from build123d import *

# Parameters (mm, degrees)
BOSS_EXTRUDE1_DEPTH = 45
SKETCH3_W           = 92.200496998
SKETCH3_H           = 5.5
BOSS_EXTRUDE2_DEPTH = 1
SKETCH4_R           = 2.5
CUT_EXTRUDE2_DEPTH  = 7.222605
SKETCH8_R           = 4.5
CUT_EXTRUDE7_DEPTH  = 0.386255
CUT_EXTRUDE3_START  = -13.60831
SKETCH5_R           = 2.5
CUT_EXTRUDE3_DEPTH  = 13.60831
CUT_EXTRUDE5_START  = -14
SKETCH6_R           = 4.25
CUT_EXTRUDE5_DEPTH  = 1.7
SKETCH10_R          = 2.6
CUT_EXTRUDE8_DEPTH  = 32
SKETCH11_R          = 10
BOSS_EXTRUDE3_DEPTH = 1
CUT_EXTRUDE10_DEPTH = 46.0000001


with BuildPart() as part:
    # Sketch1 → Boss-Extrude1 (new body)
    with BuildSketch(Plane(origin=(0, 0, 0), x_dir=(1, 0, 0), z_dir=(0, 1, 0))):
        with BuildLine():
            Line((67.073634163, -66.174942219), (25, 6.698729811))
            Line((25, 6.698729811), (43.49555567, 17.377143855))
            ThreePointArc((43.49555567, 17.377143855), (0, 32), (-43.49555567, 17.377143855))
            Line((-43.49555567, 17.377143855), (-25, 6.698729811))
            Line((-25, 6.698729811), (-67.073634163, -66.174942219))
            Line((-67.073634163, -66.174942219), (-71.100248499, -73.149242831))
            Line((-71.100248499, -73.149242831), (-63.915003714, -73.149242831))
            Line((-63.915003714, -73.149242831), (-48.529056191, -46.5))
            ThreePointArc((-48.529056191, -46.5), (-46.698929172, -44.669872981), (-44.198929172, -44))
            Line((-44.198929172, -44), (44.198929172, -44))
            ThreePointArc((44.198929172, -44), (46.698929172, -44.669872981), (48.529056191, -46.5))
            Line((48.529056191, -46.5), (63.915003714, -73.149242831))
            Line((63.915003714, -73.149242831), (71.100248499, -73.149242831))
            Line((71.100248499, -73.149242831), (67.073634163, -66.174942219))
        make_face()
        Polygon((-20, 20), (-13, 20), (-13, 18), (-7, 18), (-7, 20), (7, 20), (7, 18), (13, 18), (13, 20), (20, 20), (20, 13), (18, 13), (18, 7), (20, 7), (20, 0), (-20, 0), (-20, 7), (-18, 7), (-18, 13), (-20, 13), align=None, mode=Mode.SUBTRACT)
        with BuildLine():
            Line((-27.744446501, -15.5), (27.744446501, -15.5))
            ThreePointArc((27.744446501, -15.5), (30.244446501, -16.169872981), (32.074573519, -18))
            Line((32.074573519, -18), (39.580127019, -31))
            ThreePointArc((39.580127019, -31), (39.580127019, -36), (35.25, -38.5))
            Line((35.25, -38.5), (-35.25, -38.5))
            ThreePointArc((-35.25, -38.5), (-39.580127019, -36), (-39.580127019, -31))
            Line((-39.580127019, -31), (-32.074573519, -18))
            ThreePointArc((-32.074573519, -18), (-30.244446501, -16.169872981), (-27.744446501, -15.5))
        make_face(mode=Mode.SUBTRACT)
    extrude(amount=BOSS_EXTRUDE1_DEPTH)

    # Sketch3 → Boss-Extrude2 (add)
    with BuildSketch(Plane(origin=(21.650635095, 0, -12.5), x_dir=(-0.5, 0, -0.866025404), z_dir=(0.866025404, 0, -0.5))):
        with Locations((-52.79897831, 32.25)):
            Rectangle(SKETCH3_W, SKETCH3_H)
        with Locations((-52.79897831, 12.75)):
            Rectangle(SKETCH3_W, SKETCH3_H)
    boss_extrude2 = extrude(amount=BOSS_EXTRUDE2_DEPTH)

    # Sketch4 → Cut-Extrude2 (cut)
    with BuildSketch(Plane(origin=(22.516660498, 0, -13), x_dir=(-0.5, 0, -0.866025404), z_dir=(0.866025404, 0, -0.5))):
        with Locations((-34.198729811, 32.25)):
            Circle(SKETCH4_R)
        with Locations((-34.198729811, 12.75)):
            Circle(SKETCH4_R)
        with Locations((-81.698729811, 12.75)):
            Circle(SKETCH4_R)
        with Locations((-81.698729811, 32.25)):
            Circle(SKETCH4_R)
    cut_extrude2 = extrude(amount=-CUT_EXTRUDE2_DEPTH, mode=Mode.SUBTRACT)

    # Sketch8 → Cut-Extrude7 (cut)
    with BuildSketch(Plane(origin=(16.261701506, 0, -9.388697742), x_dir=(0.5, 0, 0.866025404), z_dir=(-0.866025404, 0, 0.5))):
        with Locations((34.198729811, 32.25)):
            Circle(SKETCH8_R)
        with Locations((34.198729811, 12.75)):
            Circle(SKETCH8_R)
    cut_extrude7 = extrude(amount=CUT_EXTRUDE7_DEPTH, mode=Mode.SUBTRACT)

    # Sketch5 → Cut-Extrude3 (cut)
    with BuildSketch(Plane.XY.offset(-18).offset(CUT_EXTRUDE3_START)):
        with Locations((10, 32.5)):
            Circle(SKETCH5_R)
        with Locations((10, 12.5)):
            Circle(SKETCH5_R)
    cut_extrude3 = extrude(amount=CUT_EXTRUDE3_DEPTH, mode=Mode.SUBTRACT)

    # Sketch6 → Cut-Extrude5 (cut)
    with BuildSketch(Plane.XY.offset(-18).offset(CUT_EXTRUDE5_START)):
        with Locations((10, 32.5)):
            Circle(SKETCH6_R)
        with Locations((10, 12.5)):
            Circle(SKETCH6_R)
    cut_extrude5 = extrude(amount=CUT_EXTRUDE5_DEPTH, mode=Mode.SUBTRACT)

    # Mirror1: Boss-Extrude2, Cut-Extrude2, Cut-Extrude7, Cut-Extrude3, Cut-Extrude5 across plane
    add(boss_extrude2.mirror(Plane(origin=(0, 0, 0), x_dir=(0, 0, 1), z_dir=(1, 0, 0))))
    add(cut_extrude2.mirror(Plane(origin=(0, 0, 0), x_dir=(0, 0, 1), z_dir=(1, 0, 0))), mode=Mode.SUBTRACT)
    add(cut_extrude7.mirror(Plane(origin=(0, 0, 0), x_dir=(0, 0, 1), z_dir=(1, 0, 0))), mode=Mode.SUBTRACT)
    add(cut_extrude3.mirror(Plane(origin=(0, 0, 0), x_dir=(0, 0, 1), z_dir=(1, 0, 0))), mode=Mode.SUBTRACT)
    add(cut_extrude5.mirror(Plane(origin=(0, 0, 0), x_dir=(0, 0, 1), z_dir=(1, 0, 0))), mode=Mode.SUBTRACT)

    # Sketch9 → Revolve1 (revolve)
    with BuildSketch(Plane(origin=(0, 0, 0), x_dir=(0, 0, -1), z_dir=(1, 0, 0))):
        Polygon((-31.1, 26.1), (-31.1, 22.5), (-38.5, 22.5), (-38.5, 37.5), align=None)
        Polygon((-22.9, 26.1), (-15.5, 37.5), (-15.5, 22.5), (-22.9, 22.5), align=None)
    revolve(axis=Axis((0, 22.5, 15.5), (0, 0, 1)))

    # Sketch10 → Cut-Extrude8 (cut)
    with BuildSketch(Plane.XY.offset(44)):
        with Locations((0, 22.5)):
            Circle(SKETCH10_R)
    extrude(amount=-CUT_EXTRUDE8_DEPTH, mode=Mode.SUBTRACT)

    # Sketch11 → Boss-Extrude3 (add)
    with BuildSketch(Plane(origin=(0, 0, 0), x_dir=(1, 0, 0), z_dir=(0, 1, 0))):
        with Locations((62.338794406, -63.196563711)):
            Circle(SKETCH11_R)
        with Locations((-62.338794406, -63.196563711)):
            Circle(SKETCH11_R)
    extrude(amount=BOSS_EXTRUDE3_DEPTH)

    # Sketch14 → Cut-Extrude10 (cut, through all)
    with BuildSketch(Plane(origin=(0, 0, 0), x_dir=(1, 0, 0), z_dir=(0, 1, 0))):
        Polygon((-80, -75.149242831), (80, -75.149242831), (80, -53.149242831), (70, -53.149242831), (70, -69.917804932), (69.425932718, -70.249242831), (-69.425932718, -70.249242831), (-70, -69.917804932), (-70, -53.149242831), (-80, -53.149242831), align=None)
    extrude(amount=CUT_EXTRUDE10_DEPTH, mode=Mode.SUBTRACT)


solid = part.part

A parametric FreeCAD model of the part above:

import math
import FreeCAD as App
import Part
import Sketcher
Q = App.Units.Quantity

doc = App.newDocument("Part")
body = doc.addObject("PartDesign::Body", "Body")

sketch1 = body.newObject("Sketcher::SketchObject", "Sketch")
sketch1.AttachmentSupport = (doc.getObject("XZ_Plane"), [""])
sketch1.MapMode = "FlatFace"
sketch1.addGeometry([
    Part.LineSegment(App.Vector(67.1, 66.2, 0), App.Vector(25, -6.7, 0)),
    Part.LineSegment(App.Vector(25, -6.7, 0), App.Vector(43.5, -17.4, 0)),
    Part.ArcOfCircle(Part.Circle(App.Vector(0, 40, 0), App.Vector(0, 0, 1), 72), math.radians(-127), math.radians(-53)),
    Part.LineSegment(App.Vector(-43.5, -17.4, 0), App.Vector(-25, -6.7, 0)),
    Part.LineSegment(App.Vector(-25, -6.7, 0), App.Vector(-67.1, 66.2, 0)),
    Part.LineSegment(App.Vector(-67.1, 66.2, 0), App.Vector(-71.1, 73.1, 0)),
    Part.LineSegment(App.Vector(-71.1, 73.1, 0), App.Vector(-63.9, 73.1, 0)),
    Part.LineSegment(App.Vector(-63.9, 73.1, 0), App.Vector(-48.5, 46.5, 0)),
    Part.ArcOfCircle(Part.Circle(App.Vector(-44.2, 49, 0), App.Vector(0, 0, 1), 5), math.radians(-150), math.radians(-90)),
    Part.LineSegment(App.Vector(-44.2, 44, 0), App.Vector(44.2, 44, 0)),
    Part.ArcOfCircle(Part.Circle(App.Vector(44.2, 49, 0), App.Vector(0, 0, 1), 5), math.radians(-90), math.radians(-30)),
    Part.LineSegment(App.Vector(48.5, 46.5, 0), App.Vector(63.9, 73.1, 0)),
    Part.LineSegment(App.Vector(63.9, 73.1, 0), App.Vector(71.1, 73.1, 0)),
    Part.LineSegment(App.Vector(71.1, 73.1, 0), App.Vector(67.1, 66.2, 0)),
    Part.ArcOfCircle(Part.Circle(App.Vector(-27.7, 20.5, 0), App.Vector(0, 0, 1), 5), math.radians(-150), math.radians(-90)),
    Part.LineSegment(App.Vector(-27.7, 15.5, 0), App.Vector(27.7, 15.5, 0)),
    Part.ArcOfCircle(Part.Circle(App.Vector(27.7, 20.5, 0), App.Vector(0, 0, 1), 5), math.radians(-90), math.radians(-30)),
    Part.LineSegment(App.Vector(32.1, 18, 0), App.Vector(39.6, 31, 0)),
    Part.ArcOfCircle(Part.Circle(App.Vector(35.2, 33.5, 0), App.Vector(0, 0, 1), 5), math.radians(-30), math.radians(90)),
    Part.LineSegment(App.Vector(35.2, 38.5, 0), App.Vector(-35.2, 38.5, 0)),
    Part.ArcOfCircle(Part.Circle(App.Vector(-35.2, 33.5, 0), App.Vector(0, 0, 1), 5), math.radians(90), math.radians(210)),
    Part.LineSegment(App.Vector(-39.6, 31, 0), App.Vector(-32.1, 18, 0)),
    Part.LineSegment(App.Vector(-20, -13, 0), App.Vector(-20, -20, 0)),
    Part.LineSegment(App.Vector(-20, -20, 0), App.Vector(-13, -20, 0)),
    Part.LineSegment(App.Vector(-13, -20, 0), App.Vector(-13, -18, 0)),
    Part.LineSegment(App.Vector(-13, -18, 0), App.Vector(-7, -18, 0)),
    Part.LineSegment(App.Vector(-7, -18, 0), App.Vector(-7, -20, 0)),
    Part.LineSegment(App.Vector(-7, -20, 0), App.Vector(7, -20, 0)),
    Part.LineSegment(App.Vector(7, -20, 0), App.Vector(7, -18, 0)),
    Part.LineSegment(App.Vector(7, -18, 0), App.Vector(13, -18, 0)),
    Part.LineSegment(App.Vector(13, -18, 0), App.Vector(13, -20, 0)),
    Part.LineSegment(App.Vector(13, -20, 0), App.Vector(20, -20, 0)),
    Part.LineSegment(App.Vector(20, -20, 0), App.Vector(20, -13, 0)),
    Part.LineSegment(App.Vector(20, -13, 0), App.Vector(18, -13, 0)),
    Part.LineSegment(App.Vector(18, -13, 0), App.Vector(18, -7, 0)),
    Part.LineSegment(App.Vector(18, -7, 0), App.Vector(20, -7, 0)),
    Part.LineSegment(App.Vector(20, -7, 0), App.Vector(20, 0, 0)),
    Part.LineSegment(App.Vector(20, 0, 0), App.Vector(-20, 0, 0)),
    Part.LineSegment(App.Vector(-20, 0, 0), App.Vector(-20, -7, 0)),
    Part.LineSegment(App.Vector(-20, -7, 0), App.Vector(-18, -7, 0)),
    Part.LineSegment(App.Vector(-18, -7, 0), App.Vector(-18, -13, 0)),
    Part.LineSegment(App.Vector(-18, -13, 0), App.Vector(-20, -13, 0)),
], False)
sketch1.addConstraint([
    Sketcher.Constraint("Coincident", 0, 2, 1, 1),
    Sketcher.Constraint("Coincident", 1, 2, 2, 2),
    Sketcher.Constraint("Coincident", 2, 1, 3, 1),
    Sketcher.Constraint("Coincident", 3, 2, 4, 1),
    Sketcher.Constraint("Coincident", 4, 2, 5, 1),
    Sketcher.Constraint("Coincident", 5, 2, 6, 1),
    Sketcher.Constraint("Coincident", 6, 2, 7, 1),
    Sketcher.Constraint("Tangent", 7, 2, 8, 1),
    Sketcher.Constraint("Tangent", 8, 2, 9, 1),
    Sketcher.Constraint("Tangent", 9, 2, 10, 1),
    Sketcher.Constraint("Tangent", 10, 2, 11, 1),
    Sketcher.Constraint("Coincident", 11, 2, 12, 1),
    Sketcher.Constraint("Coincident", 12, 2, 13, 1),
    Sketcher.Constraint("Coincident", 13, 2, 0, 1),
    Sketcher.Constraint("Tangent", 14, 2, 15, 1),
    Sketcher.Constraint("Tangent", 15, 2, 16, 1),
    Sketcher.Constraint("Tangent", 16, 2, 17, 1),
    Sketcher.Constraint("Tangent", 17, 2, 18, 1),
    Sketcher.Constraint("Tangent", 18, 2, 19, 1),
    Sketcher.Constraint("Tangent", 19, 2, 20, 1),
    Sketcher.Constraint("Tangent", 20, 2, 21, 1),
    Sketcher.Constraint("Tangent", 21, 2, 14, 1),
    Sketcher.Constraint("Coincident", 22, 2, 23, 1),
    Sketcher.Constraint("Coincident", 23, 2, 24, 1),
    Sketcher.Constraint("Coincident", 24, 2, 25, 1),
    Sketcher.Constraint("Coincident", 25, 2, 26, 1),
    Sketcher.Constraint("Coincident", 26, 2, 27, 1),
    Sketcher.Constraint("Coincident", 27, 2, 28, 1),
    Sketcher.Constraint("Coincident", 28, 2, 29, 1),
    Sketcher.Constraint("Coincident", 29, 2, 30, 1),
    Sketcher.Constraint("Coincident", 30, 2, 31, 1),
    Sketcher.Constraint("Coincident", 31, 2, 32, 1),
    Sketcher.Constraint("Coincident", 32, 2, 33, 1),
    Sketcher.Constraint("Coincident", 33, 2, 34, 1),
    Sketcher.Constraint("Coincident", 34, 2, 35, 1),
    Sketcher.Constraint("Coincident", 35, 2, 36, 1),
    Sketcher.Constraint("Coincident", 36, 2, 37, 1),
    Sketcher.Constraint("Coincident", 37, 2, 38, 1),
    Sketcher.Constraint("Coincident", 38, 2, 39, 1),
    Sketcher.Constraint("Coincident", 39, 2, 40, 1),
    Sketcher.Constraint("Coincident", 40, 2, 41, 1),
    Sketcher.Constraint("Coincident", 41, 2, 22, 1),
    Sketcher.Constraint("Horizontal", 6),
    Sketcher.Constraint("Horizontal", 9),
    Sketcher.Constraint("Horizontal", 12),
    Sketcher.Constraint("Horizontal", 15),
    Sketcher.Constraint("Horizontal", 19),
    Sketcher.Constraint("Vertical", 22),
    Sketcher.Constraint("Horizontal", 23),
    Sketcher.Constraint("Vertical", 24),
    Sketcher.Constraint("Horizontal", 25),
    Sketcher.Constraint("Vertical", 26),
    Sketcher.Constraint("Horizontal", 27),
    Sketcher.Constraint("Vertical", 28),
    Sketcher.Constraint("Horizontal", 29),
    Sketcher.Constraint("Vertical", 30),
    Sketcher.Constraint("Horizontal", 31),
    Sketcher.Constraint("Vertical", 32),
    Sketcher.Constraint("Horizontal", 33),
    Sketcher.Constraint("Vertical", 34),
    Sketcher.Constraint("Horizontal", 35),
    Sketcher.Constraint("Vertical", 36),
    Sketcher.Constraint("Horizontal", 37),
    Sketcher.Constraint("Vertical", 38),
    Sketcher.Constraint("Horizontal", 39),
    Sketcher.Constraint("Vertical", 40),
    Sketcher.Constraint("Horizontal", 41),
    Sketcher.Constraint("Equal", 8, 10),
    Sketcher.Constraint("Equal", 10, 14),
    Sketcher.Constraint("Equal", 14, 16),
    Sketcher.Constraint("Equal", 16, 18),
    Sketcher.Constraint("Equal", 18, 20),
    Sketcher.Constraint("Symmetric", 36, 2, 37, 2, -1, 1),
    Sketcher.Constraint("Symmetric", 1, 2, 2, 1, -2),
    Sketcher.Constraint("Symmetric", 0, 2, 3, 2, -2),
    Sketcher.Constraint("Symmetric", 7, 2, 10, 2, -2),
    Sketcher.Constraint("Symmetric", 5, 2, 12, 2, -2),
    Sketcher.Constraint("Symmetric", 4, 2, 13, 2, -2),
    Sketcher.Constraint("Symmetric", 17, 2, 20, 2, -2),
    Sketcher.Constraint("Symmetric", 25, 2, 28, 2, -2),
    Sketcher.Constraint("Symmetric", 23, 2, 30, 2, -2),
    Sketcher.Constraint("Symmetric", 34, 2, 39, 2, -2),
    Sketcher.Constraint("Symmetric", 32, 2, 41, 2, -2),
    Sketcher.Constraint("Perpendicular", 0, 1),
    Sketcher.Constraint("Parallel", 4, 5),
    Sketcher.Constraint("Parallel", 5, 7),
    Sketcher.Constraint("Parallel", 13, 17),
    Sketcher.Constraint("Horizontal", 23, 2, 26, 2),
    Sketcher.Constraint("Vertical", 32, 2, 35, 2),
    Sketcher.Constraint("Equal", 31, 22),
    Sketcher.Constraint("Equal", 41, 24),
    Sketcher.Constraint("Equal", 29, 34),
    Sketcher.Constraint("Equal", 32, 36),
    Sketcher.Constraint("Radius", 2, Q("72 mm")),
    Sketcher.Constraint("Radius", 8, Q("5 mm")),
    Sketcher.Constraint("DistanceX", 23, 1, 23, 2, Q("7 mm")),
    Sketcher.Constraint("DistanceX", 25, 1, 25, 2, Q("6 mm")),
    Sketcher.Constraint("DistanceX", 27, 1, 27, 2, Q("14 mm")),
    Sketcher.Constraint("DistanceX", 33, 2, 33, 1, Q("2 mm")),
    Sketcher.Constraint("Angle", 0, Q("-120 deg")),
    Sketcher.Constraint("DistanceX", 19, 2, 19, 1, Q("70.5 mm")),
    Sketcher.Constraint("DistanceY", -1, 1, 2, 3, Q("40 mm")),
    Sketcher.Constraint("DistanceY", -1, 1, 8, 3, Q("49 mm")),
    Sketcher.Constraint("DistanceX", -1, 1, 0, 2, Q("25 mm")),
    Sketcher.Constraint("DistanceY", -1, 1, 16, 2, Q("18 mm")),
    Sketcher.Constraint("DistanceY", -1, 1, 17, 2, Q("31 mm")),
    Sketcher.Constraint("DistanceX", 9, 1, 9, 2, Q("88.397858 mm")),
    Sketcher.Constraint("DistanceY", 4, 2, 5, 2, Q("6.974301 mm")),
    Sketcher.Constraint("DistanceX", 5, 2, 14, 3, Q("43.355802 mm")),
    Sketcher.Constraint("Distance", 1, Q("21.356828 mm")),
])
pad1 = body.newObject("PartDesign::Pad", "Pad")
pad1.Profile = sketch1
pad1.Length = 45
pad1.Reversed = True

sketch2 = body.newObject("Sketcher::SketchObject", "Sketch001")
sketch2.Placement = App.Placement(App.Vector(21.650635, 0, -12.5), App.Rotation(App.Vector(-0.5, 0, -0.866025404), App.Vector(0, 1, 0), App.Vector(0.866025404, 0, -0.5), "ZXY"))
sketch2.addGeometry([
    Part.LineSegment(App.Vector(-99, 35, 0), App.Vector(-99, 30, 0)),
    Part.LineSegment(App.Vector(-99, 30, 0), App.Vector(-7, 30, 0)),
    Part.LineSegment(App.Vector(-7, 30, 0), App.Vector(-7, 35, 0)),
    Part.LineSegment(App.Vector(-7, 35, 0), App.Vector(-99, 35, 0)),
    Part.LineSegment(App.Vector(-99, 16, 0), App.Vector(-99, 10, 0)),
    Part.LineSegment(App.Vector(-99, 10, 0), App.Vector(-7, 10, 0)),
    Part.LineSegment(App.Vector(-7, 10, 0), App.Vector(-7, 16, 0)),
    Part.LineSegment(App.Vector(-7, 16, 0), App.Vector(-99, 16, 0)),
], False)
sketch2.addConstraint([
    Sketcher.Constraint("Coincident", 0, 2, 1, 1),
    Sketcher.Constraint("Coincident", 1, 2, 2, 1),
    Sketcher.Constraint("Coincident", 2, 2, 3, 1),
    Sketcher.Constraint("Coincident", 3, 2, 0, 1),
    Sketcher.Constraint("Coincident", 4, 2, 5, 1),
    Sketcher.Constraint("Coincident", 5, 2, 6, 1),
    Sketcher.Constraint("Coincident", 6, 2, 7, 1),
    Sketcher.Constraint("Coincident", 7, 2, 4, 1),
    Sketcher.Constraint("Vertical", 0),
    Sketcher.Constraint("Horizontal", 1),
    Sketcher.Constraint("Vertical", 2),
    Sketcher.Constraint("Horizontal", 3),
    Sketcher.Constraint("Vertical", 4),
    Sketcher.Constraint("Horizontal", 5),
    Sketcher.Constraint("Vertical", 6),
    Sketcher.Constraint("Horizontal", 7),
    Sketcher.Constraint("Vertical", 3, 2, 4, 2),
    Sketcher.Constraint("Vertical", 2, 2, 5, 2),
    Sketcher.Constraint("Equal", 2, 4),
    Sketcher.Constraint("DistanceY", 0, 2, 0, 1, Q("5.5 mm")),
    Sketcher.Constraint("DistanceY", -1, 1, 2, 2, Q("35 mm")),
    Sketcher.Constraint("DistanceY", -1, 1, 4, 2, Q("10 mm")),
    Sketcher.Constraint("DistanceX", 1, 1, 1, 2, Q("92.200497 mm")),
    Sketcher.Constraint("DistanceX", 1, 2, -1, 1, Q("6.69873 mm")),
])
pad2 = body.newObject("PartDesign::Pad", "Pad001")
pad2.Profile = sketch2
pad2.Length = 1

sketch3 = body.newObject("Sketcher::SketchObject", "Sketch002")
sketch3.Placement = App.Placement(App.Vector(22.51666, 0, -13), App.Rotation(App.Vector(-0.5, 0, -0.866025404), App.Vector(0, 1, 0), App.Vector(0.866025404, 0, -0.5), "ZXY"))
sketch3.addGeometry([
    Part.Circle(App.Vector(-34.2, 32.3, 0), App.Vector(0, 0, 1), 2.5),
    Part.Circle(App.Vector(-34.2, 12.8, 0), App.Vector(0, 0, 1), 2.5),
    Part.Circle(App.Vector(-81.7, 12.8, 0), App.Vector(0, 0, 1), 2.5),
    Part.Circle(App.Vector(-81.7, 32.3, 0), App.Vector(0, 0, 1), 2.5),
], False)
sketch3.addConstraint([
    Sketcher.Constraint("Equal", 0, 1),
    Sketcher.Constraint("Equal", 1, 2),
    Sketcher.Constraint("Equal", 2, 3),
    Sketcher.Constraint("Horizontal", 1, 3, 2, 3),
    Sketcher.Constraint("Horizontal", 0, 3, 3, 3),
    Sketcher.Constraint("Vertical", 0, 3, 1, 3),
    Sketcher.Constraint("Vertical", 2, 3, 3, 3),
    Sketcher.Constraint("Diameter", 0, Q("5 mm")),
    Sketcher.Constraint("DistanceY", 1, 3, 0, 3, Q("19.5 mm")),
    Sketcher.Constraint("DistanceX", 2, 3, 1, 3, Q("47.5 mm")),
    Sketcher.Constraint("DistanceY", -1, 1, 0, 3, Q("32.25 mm")),
    Sketcher.Constraint("DistanceX", 0, 3, -1, 1, Q("34.19873 mm")),
])
pocket1 = body.newObject("PartDesign::Pocket", "Pocket")
pocket1.Profile = sketch3
pocket1.Length = 7.222605

sketch4 = body.newObject("Sketcher::SketchObject", "Sketch003")
sketch4.Placement = App.Placement(App.Vector(16.261702, 0, -9.388698), App.Rotation(App.Vector(0.5, 0, 0.866025404), App.Vector(0, 1, 0), App.Vector(-0.866025404, 0, 0.5), "ZXY"))
sketch4.addGeometry([
    Part.Circle(App.Vector(34.2, 32.3, 0), App.Vector(0, 0, 1), 4.5),
    Part.Circle(App.Vector(34.2, 12.8, 0), App.Vector(0, 0, 1), 4.5),
], False)
sketch4.addConstraint([
    Sketcher.Constraint("Equal", 0, 1),
    Sketcher.Constraint("Vertical", 0, 3, 1, 3),
    Sketcher.Constraint("Diameter", 0, Q("9 mm")),
    Sketcher.Constraint("DistanceY", 1, 3, 0, 3, Q("19.5 mm")),
    Sketcher.Constraint("DistanceY", -1, 1, 0, 3, Q("32.25 mm")),
    Sketcher.Constraint("DistanceX", -1, 1, 0, 3, Q("34.19873 mm")),
])
pocket2 = body.newObject("PartDesign::Pocket", "Pocket001")
pocket2.Profile = sketch4
pocket2.Length = 0.386255
pocket2.Reversed = True

sketch5 = body.newObject("Sketcher::SketchObject", "Sketch004")
sketch5.AttachmentSupport = (doc.getObject("XY_Plane"), [""])
sketch5.MapMode = "FlatFace"
sketch5.AttachmentOffset = App.Placement(App.Vector(0, 0, -31.60831), App.Rotation())
sketch5.addGeometry([
    Part.Circle(App.Vector(10, 32.5, 0), App.Vector(0, 0, 1), 2.5),
    Part.Circle(App.Vector(10, 12.5, 0), App.Vector(0, 0, 1), 2.5),
], False)
sketch5.addConstraint([
    Sketcher.Constraint("Equal", 0, 1),
    Sketcher.Constraint("Vertical", 0, 3, 1, 3),
    Sketcher.Constraint("Diameter", 0, Q("5 mm")),
    Sketcher.Constraint("DistanceX", -1, 1, 0, 3, Q("10 mm")),
    Sketcher.Constraint("DistanceY", 1, 3, 0, 3, Q("20 mm")),
    Sketcher.Constraint("DistanceY", -1, 1, 0, 3, Q("32.5 mm")),
])
pocket3 = body.newObject("PartDesign::Pocket", "Pocket002")
pocket3.Profile = sketch5
pocket3.Length = 13.60831
pocket3.Reversed = True

sketch6 = body.newObject("Sketcher::SketchObject", "Sketch005")
sketch6.AttachmentSupport = (doc.getObject("XY_Plane"), [""])
sketch6.MapMode = "FlatFace"
sketch6.AttachmentOffset = App.Placement(App.Vector(0, 0, -32), App.Rotation())
sketch6.addGeometry([
    Part.Circle(App.Vector(10, 32.5, 0), App.Vector(0, 0, 1), 4.2),
    Part.Circle(App.Vector(10, 12.5, 0), App.Vector(0, 0, 1), 4.2),
], False)
sketch6.addConstraint([
    Sketcher.Constraint("Equal", 0, 1),
    Sketcher.Constraint("Vertical", 0, 3, 1, 3),
    Sketcher.Constraint("Diameter", 0, Q("8.5 mm")),
    Sketcher.Constraint("DistanceX", -1, 1, 0, 3, Q("10 mm")),
    Sketcher.Constraint("DistanceY", 1, 3, 0, 3, Q("20 mm")),
    Sketcher.Constraint("DistanceY", -1, 1, 0, 3, Q("32.5 mm")),
])
pocket4 = body.newObject("PartDesign::Pocket", "Pocket003")
pocket4.Profile = sketch6
pocket4.Length = 1.7
pocket4.Reversed = True
doc.recompute()

mirrored = body.newObject("PartDesign::Mirrored", "Mirrored")
mirrored.Originals = [pad2, pocket1, pocket2, pocket3, pocket4]
mirrored.MirrorPlane = (doc.getObject("YZ_Plane"), [""])
body.Tip = mirrored

sketch7 = body.newObject("Sketcher::SketchObject", "Sketch006")
sketch7.AttachmentSupport = (doc.getObject("YZ_Plane"), [""])
sketch7.MapMode = "FlatFace"
sketch7.addGeometry([
    Part.LineSegment(App.Vector(22.5, 31.1, 0), App.Vector(26.1, 31.1, 0)),
    Part.LineSegment(App.Vector(26.1, 31.1, 0), App.Vector(37.5, 38.5, 0)),
    Part.LineSegment(App.Vector(37.5, 38.5, 0), App.Vector(22.5, 38.5, 0)),
    Part.LineSegment(App.Vector(22.5, 38.5, 0), App.Vector(22.5, 31.1, 0)),
    Part.LineSegment(App.Vector(37.5, 15.5, 0), App.Vector(26.1, 22.9, 0)),
    Part.LineSegment(App.Vector(26.1, 22.9, 0), App.Vector(22.5, 22.9, 0)),
    Part.LineSegment(App.Vector(22.5, 22.9, 0), App.Vector(22.5, 15.5, 0)),
    Part.LineSegment(App.Vector(22.5, 15.5, 0), App.Vector(37.5, 15.5, 0)),
], False)
sketch7.addGeometry(Part.LineSegment(App.Vector(22.5, 15.5, 0), App.Vector(22.5, 38.5, 0)), True)
sketch7.addConstraint([
    Sketcher.Constraint("Coincident", 0, 2, 1, 1),
    Sketcher.Constraint("Coincident", 1, 2, 2, 1),
    Sketcher.Constraint("Coincident", 2, 2, 3, 1),
    Sketcher.Constraint("Coincident", 3, 2, 0, 1),
    Sketcher.Constraint("Coincident", 4, 2, 5, 1),
    Sketcher.Constraint("Coincident", 5, 2, 6, 1),
    Sketcher.Constraint("Coincident", 6, 2, 7, 1),
    Sketcher.Constraint("Coincident", 7, 2, 4, 1),
    Sketcher.Constraint("Horizontal", 0),
    Sketcher.Constraint("Horizontal", 2),
    Sketcher.Constraint("Vertical", 3),
    Sketcher.Constraint("Horizontal", 5),
    Sketcher.Constraint("Vertical", 6),
    Sketcher.Constraint("Horizontal", 7),
    Sketcher.Constraint("Vertical", 8),
    Sketcher.Constraint("Coincident", 8, 1, 6, 2),
    Sketcher.Constraint("Coincident", 8, 2, 2, 2),
    Sketcher.Constraint("Vertical", 0, 2, 4, 2),
    Sketcher.Constraint("Vertical", 1, 2, 7, 2),
    Sketcher.Constraint("Equal", 3, 6),
    Sketcher.Constraint("DistanceX", 2, 2, 2, 1, Q("15 mm")),
    Sketcher.Constraint("DistanceY", 8, 1, 8, 2, Q("23 mm")),
    Sketcher.Constraint("DistanceX", 0, 1, 0, 2, Q("3.6 mm")),
    Sketcher.Constraint("DistanceY", 3, 2, 3, 1, Q("7.4 mm")),
    Sketcher.Constraint("DistanceX", -1, 1, 0, 2, Q("26.1 mm")),
    Sketcher.Constraint("DistanceY", -1, 1, 0, 2, Q("31.1 mm")),
])
revolution = body.newObject("PartDesign::Revolution", "Revolution")
revolution.Profile = sketch7
revolution.ReferenceAxis = (sketch7, ["Axis0"])
revolution.Angle = 360

sketch8 = body.newObject("Sketcher::SketchObject", "Sketch007")
sketch8.AttachmentSupport = (doc.getObject("XY_Plane"), [""])
sketch8.MapMode = "FlatFace"
sketch8.AttachmentOffset = App.Placement(App.Vector(0, 0, 44), App.Rotation())
sketch8.addGeometry(Part.Circle(App.Vector(0, 22.5, 0), App.Vector(0, 0, 1), 2.6), False)
sketch8.addConstraint([
    Sketcher.Constraint("PointOnObject", 0, 3, -2),
    Sketcher.Constraint("Diameter", 0, Q("5.2 mm")),
    Sketcher.Constraint("DistanceY", -1, 1, 0, 3, Q("22.5 mm")),
])
pocket5 = body.newObject("PartDesign::Pocket", "Pocket004")
pocket5.Profile = sketch8
pocket5.Length = 32

sketch9 = body.newObject("Sketcher::SketchObject", "Sketch008")
sketch9.AttachmentSupport = (doc.getObject("XZ_Plane"), [""])
sketch9.MapMode = "FlatFace"
sketch9.addGeometry([
    Part.Circle(App.Vector(62, 63, 0), App.Vector(0, 0, 1), 10),
    Part.Circle(App.Vector(-62, 63, 0), App.Vector(0, 0, 1), 10),
], False)
sketch9.addConstraint([
    Sketcher.Constraint("Equal", 0, 1),
    Sketcher.Constraint("Symmetric", 0, 3, 1, 3, -2),
    Sketcher.Constraint("Diameter", 0, Q("20 mm")),
    Sketcher.Constraint("DistanceX", 1, 3, 0, 3, Q("124.677589 mm")),
    Sketcher.Constraint("DistanceY", -1, 1, 0, 3, Q("63.196564 mm")),
])
pad3 = body.newObject("PartDesign::Pad", "Pad002")
pad3.Profile = sketch9
pad3.Length = 1
pad3.Reversed = True

sketch10 = body.newObject("Sketcher::SketchObject", "Sketch009")
sketch10.AttachmentSupport = (doc.getObject("XZ_Plane"), [""])
sketch10.MapMode = "FlatFace"
sketch10.addGeometry([
    Part.LineSegment(App.Vector(-80, 75.1, 0), App.Vector(80, 75.1, 0)),
    Part.LineSegment(App.Vector(80, 75.1, 0), App.Vector(80, 53.1, 0)),
    Part.LineSegment(App.Vector(80, 53.1, 0), App.Vector(70, 53.1, 0)),
    Part.LineSegment(App.Vector(70, 53.1, 0), App.Vector(70, 69.9, 0)),
    Part.LineSegment(App.Vector(70, 69.9, 0), App.Vector(69.4, 70.2, 0)),
    Part.LineSegment(App.Vector(69.4, 70.2, 0), App.Vector(-69.4, 70.2, 0)),
    Part.LineSegment(App.Vector(-69.4, 70.2, 0), App.Vector(-70, 69.9, 0)),
    Part.LineSegment(App.Vector(-70, 69.9, 0), App.Vector(-70, 53.1, 0)),
    Part.LineSegment(App.Vector(-70, 53.1, 0), App.Vector(-80, 53.1, 0)),
    Part.LineSegment(App.Vector(-80, 53.1, 0), App.Vector(-80, 75.1, 0)),
], False)
sketch10.addConstraint([
    Sketcher.Constraint("Coincident", 0, 2, 1, 1),
    Sketcher.Constraint("Coincident", 1, 2, 2, 1),
    Sketcher.Constraint("Coincident", 2, 2, 3, 1),
    Sketcher.Constraint("Coincident", 3, 2, 4, 1),
    Sketcher.Constraint("Coincident", 4, 2, 5, 1),
    Sketcher.Constraint("Coincident", 5, 2, 6, 1),
    Sketcher.Constraint("Coincident", 6, 2, 7, 1),
    Sketcher.Constraint("Coincident", 7, 2, 8, 1),
    Sketcher.Constraint("Coincident", 8, 2, 9, 1),
    Sketcher.Constraint("Coincident", 9, 2, 0, 1),
    Sketcher.Constraint("Horizontal", 0),
    Sketcher.Constraint("Vertical", 1),
    Sketcher.Constraint("Horizontal", 2),
    Sketcher.Constraint("Vertical", 3),
    Sketcher.Constraint("Horizontal", 5),
    Sketcher.Constraint("Vertical", 7),
    Sketcher.Constraint("Horizontal", 8),
    Sketcher.Constraint("Vertical", 9),
    Sketcher.Constraint("Symmetric", 3, 2, 6, 2, -2),
    Sketcher.Constraint("Symmetric", 1, 2, 8, 2, -2),
    Sketcher.Constraint("Equal", 4, 6),
    Sketcher.Constraint("DistanceX", 0, 1, 0, 2, Q("160 mm")),
    Sketcher.Constraint("DistanceX", 2, 2, 2, 1, Q("10 mm")),
    Sketcher.Constraint("DistanceY", 1, 2, 1, 1, Q("22 mm")),
    Sketcher.Constraint("Angle", 4, Q("150 deg")),
    Sketcher.Constraint("DistanceY", 4, 2, 0, 2, Q("4.9 mm")),
    Sketcher.Constraint("DistanceX", 5, 2, 5, 1, Q("138.851865 mm")),
    Sketcher.Constraint("DistanceY", -1, 1, 0, 2, Q("75.149243 mm")),
])
pocket6 = body.newObject("PartDesign::Pocket", "Pocket005")
pocket6.Profile = sketch10
pocket6.Type = "ThroughAll"

doc.recompute()
